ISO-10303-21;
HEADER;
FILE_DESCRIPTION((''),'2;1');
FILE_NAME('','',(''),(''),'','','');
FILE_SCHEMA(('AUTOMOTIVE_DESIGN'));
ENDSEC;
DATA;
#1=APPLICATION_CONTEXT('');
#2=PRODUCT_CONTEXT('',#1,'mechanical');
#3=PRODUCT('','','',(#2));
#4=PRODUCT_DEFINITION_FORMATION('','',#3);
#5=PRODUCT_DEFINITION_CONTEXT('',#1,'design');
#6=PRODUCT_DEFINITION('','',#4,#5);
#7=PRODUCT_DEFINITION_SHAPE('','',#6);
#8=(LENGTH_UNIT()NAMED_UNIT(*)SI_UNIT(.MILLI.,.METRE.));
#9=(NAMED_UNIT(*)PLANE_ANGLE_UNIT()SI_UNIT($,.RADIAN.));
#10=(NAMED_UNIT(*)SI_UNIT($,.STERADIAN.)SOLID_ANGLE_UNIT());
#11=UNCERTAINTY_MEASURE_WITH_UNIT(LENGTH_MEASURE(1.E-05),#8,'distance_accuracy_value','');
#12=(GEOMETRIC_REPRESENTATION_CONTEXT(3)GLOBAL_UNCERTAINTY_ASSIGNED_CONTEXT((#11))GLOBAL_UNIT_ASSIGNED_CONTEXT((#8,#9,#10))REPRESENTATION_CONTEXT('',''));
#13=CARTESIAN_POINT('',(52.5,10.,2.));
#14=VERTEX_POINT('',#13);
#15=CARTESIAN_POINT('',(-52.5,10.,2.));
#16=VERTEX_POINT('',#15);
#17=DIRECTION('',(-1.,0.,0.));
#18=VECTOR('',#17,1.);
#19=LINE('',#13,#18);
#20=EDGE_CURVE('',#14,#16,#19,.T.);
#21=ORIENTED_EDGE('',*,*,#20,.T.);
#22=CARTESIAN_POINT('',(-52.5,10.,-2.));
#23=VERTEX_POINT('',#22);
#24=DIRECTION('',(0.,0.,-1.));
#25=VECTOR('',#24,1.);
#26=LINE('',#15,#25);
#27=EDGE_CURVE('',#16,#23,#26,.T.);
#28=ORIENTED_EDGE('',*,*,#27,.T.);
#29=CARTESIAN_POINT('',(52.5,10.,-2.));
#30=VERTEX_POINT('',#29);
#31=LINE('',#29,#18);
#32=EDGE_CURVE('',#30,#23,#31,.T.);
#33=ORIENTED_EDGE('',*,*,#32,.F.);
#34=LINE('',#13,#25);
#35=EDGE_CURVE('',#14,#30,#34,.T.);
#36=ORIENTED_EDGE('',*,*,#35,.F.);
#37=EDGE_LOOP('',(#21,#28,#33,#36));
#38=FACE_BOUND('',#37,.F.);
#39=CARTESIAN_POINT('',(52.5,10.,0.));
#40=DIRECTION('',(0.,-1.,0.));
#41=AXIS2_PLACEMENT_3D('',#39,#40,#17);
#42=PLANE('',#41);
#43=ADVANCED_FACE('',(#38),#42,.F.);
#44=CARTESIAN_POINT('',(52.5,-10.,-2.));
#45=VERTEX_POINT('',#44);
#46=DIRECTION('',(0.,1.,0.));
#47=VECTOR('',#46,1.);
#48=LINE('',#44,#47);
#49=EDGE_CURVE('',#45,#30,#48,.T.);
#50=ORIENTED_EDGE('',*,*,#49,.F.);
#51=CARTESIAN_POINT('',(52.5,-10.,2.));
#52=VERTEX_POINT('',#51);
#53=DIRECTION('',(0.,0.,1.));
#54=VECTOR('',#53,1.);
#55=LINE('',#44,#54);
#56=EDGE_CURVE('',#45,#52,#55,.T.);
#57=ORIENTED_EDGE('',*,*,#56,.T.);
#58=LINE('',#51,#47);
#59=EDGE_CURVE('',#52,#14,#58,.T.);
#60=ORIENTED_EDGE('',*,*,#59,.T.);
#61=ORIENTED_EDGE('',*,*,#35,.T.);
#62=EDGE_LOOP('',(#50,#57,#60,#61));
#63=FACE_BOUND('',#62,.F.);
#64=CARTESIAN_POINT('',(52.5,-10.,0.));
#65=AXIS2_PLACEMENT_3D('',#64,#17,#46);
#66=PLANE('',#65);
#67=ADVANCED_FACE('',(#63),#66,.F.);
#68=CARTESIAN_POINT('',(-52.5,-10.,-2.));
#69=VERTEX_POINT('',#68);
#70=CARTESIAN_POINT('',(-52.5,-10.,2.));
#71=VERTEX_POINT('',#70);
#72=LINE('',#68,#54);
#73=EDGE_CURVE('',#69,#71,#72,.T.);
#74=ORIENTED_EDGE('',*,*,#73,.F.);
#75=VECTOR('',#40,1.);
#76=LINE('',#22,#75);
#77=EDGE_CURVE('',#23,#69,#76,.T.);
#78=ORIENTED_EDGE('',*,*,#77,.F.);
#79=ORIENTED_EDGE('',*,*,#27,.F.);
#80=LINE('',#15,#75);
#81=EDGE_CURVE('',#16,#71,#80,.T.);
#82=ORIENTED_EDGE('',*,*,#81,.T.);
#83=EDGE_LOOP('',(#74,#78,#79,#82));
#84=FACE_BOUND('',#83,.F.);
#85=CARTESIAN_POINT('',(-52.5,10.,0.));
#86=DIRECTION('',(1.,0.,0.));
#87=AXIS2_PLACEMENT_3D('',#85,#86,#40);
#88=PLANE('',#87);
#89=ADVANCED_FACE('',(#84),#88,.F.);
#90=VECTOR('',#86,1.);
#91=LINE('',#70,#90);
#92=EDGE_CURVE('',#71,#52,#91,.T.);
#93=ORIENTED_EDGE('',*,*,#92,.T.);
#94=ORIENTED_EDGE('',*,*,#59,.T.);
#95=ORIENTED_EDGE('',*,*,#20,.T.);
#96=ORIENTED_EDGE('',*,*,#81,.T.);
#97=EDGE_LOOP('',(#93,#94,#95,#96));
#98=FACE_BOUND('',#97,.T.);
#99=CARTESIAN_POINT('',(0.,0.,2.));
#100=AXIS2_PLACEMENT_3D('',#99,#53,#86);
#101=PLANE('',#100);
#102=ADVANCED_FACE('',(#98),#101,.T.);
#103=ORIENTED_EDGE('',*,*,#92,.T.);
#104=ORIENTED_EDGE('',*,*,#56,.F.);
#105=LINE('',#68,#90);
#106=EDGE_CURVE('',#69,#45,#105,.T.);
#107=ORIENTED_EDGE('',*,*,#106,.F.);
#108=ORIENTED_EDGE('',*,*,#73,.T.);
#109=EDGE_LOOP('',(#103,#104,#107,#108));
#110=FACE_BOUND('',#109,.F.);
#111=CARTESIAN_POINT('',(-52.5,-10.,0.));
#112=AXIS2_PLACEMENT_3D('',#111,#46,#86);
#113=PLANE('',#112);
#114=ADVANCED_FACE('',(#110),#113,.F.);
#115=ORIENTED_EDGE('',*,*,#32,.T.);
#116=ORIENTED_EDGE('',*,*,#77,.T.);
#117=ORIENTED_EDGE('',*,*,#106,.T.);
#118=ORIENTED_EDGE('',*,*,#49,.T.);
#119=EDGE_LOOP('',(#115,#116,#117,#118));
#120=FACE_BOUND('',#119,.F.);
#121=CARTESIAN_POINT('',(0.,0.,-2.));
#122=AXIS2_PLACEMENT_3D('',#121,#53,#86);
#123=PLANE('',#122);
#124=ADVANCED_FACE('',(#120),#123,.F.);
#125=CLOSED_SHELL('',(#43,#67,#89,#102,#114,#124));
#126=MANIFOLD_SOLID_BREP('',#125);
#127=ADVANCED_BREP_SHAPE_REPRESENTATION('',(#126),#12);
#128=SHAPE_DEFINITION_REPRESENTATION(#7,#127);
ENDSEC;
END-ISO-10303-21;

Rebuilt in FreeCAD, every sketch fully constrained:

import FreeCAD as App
import Part
import Sketcher

V = App.Vector

doc = App.newDocument("Part")
body = doc.addObject("PartDesign::Body", "Body")

sketch1 = body.newObject("Sketcher::SketchObject", "Sketch")
sketch1.AttachmentSupport = (doc.getObject("XY_Plane"), [""])
sketch1.MapMode = "FlatFace"
sketch1.addGeometry([
    Part.LineSegment(V(-52, 10, 0), V(-52, -10, 0)),
    Part.LineSegment(V(-52, -10, 0), V(52, -10, 0)),
    Part.LineSegment(V(52, -10, 0), V(52, 10, 0)),
    Part.LineSegment(V(52, 10, 0), V(-52, 10, 0)),
], False)
sketch1.addConstraint([
    Sketcher.Constraint("Coincident", 0, 2, 1, 1),
    Sketcher.Constraint("Coincident", 1, 2, 2, 1),
    Sketcher.Constraint("Coincident", 2, 2, 3, 1),
    Sketcher.Constraint("Coincident", 3, 2, 0, 1),
    Sketcher.Constraint("Vertical", 0),
    Sketcher.Constraint("Horizontal", 1),
    Sketcher.Constraint("Vertical", 2),
    Sketcher.Constraint("Horizontal", 3),
    Sketcher.Constraint("Symmetric", 0, 2, 2, 2, -1, 1),
    Sketcher.Constraint("DistanceX", 1, 1, 1, 2, 105.0),
    Sketcher.Constraint("DistanceY", 0, 2, 0, 1, 20.0),
])
pad1 = body.newObject("PartDesign::Pad", "Pad")
pad1.Profile = sketch1
pad1.Length = 4
pad1.Midplane = True

doc.recompute()
